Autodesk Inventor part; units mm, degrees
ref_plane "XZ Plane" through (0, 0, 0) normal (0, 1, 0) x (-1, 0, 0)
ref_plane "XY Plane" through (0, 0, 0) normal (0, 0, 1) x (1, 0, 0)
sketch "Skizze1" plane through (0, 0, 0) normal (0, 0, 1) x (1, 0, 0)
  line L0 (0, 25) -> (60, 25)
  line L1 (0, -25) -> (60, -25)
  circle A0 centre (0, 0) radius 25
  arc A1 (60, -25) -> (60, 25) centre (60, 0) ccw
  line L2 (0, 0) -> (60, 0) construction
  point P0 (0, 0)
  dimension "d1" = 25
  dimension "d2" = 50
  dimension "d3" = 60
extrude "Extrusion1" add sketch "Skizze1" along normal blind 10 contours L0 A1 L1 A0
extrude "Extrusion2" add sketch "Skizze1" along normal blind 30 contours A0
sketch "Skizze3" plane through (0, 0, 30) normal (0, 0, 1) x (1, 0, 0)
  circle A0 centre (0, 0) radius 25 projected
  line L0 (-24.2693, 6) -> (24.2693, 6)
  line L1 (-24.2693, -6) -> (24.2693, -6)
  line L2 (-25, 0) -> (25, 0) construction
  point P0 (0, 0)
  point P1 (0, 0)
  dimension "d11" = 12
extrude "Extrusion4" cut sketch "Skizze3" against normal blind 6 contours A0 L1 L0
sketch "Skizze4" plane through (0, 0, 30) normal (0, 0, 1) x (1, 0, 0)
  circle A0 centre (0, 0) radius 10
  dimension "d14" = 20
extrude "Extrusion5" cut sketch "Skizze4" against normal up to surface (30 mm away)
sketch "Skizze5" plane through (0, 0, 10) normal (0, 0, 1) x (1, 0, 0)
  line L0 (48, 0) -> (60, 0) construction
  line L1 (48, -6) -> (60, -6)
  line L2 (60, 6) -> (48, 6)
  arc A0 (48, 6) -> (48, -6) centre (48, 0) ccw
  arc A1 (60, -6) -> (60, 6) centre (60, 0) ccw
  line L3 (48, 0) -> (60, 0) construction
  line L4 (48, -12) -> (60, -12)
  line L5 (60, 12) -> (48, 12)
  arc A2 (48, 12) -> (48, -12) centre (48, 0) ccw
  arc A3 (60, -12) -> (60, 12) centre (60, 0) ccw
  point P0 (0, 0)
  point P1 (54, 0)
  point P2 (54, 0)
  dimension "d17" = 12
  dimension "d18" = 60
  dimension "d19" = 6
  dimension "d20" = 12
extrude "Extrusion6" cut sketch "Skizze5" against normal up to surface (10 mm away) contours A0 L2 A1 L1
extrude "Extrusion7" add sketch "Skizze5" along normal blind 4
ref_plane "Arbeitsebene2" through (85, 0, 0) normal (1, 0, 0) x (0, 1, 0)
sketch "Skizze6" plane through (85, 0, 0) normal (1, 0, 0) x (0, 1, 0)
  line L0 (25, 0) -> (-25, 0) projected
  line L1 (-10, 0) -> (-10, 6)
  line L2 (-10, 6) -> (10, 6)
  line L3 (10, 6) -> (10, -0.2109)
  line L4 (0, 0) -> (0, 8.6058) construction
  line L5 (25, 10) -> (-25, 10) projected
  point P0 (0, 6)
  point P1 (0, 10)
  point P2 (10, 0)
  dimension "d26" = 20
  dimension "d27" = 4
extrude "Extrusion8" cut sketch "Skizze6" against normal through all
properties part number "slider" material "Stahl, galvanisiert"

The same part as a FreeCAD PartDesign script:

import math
import FreeCAD as App
import Part
import Sketcher

V = App.Vector
Q = App.Units.Quantity

doc = App.newDocument("Part")
body = doc.addObject("PartDesign::Body", "Body")

# Sketch on XY plane
sketch1 = body.newObject("Sketcher::SketchObject", "Sketch")
sketch1.AttachmentSupport = (doc.getObject("XY_Plane"), [""])
sketch1.MapMode = "FlatFace"
sketch1.addGeometry(Part.LineSegment(V(60, 25, 0), V(0, 25, 0)), False)
sketch1.addGeometry(Part.ArcOfCircle(Part.Circle(V(0, 0, 0), V(0, 0, 1), 25), math.radians(-90), math.radians(90)), False)
sketch1.addGeometry(Part.LineSegment(V(0, -25, 0), V(60, -25, 0)), False)
sketch1.addGeometry(Part.ArcOfCircle(Part.Circle(V(60, 0, 0), V(0, 0, 1), 25), math.radians(-90), math.radians(90)), False)
sketch1.addConstraint(Sketcher.Constraint("Tangent", 0, 2, 1, 2))
sketch1.addConstraint(Sketcher.Constraint("Tangent", 1, 1, 2, 1))
sketch1.addConstraint(Sketcher.Constraint("Tangent", 2, 2, 3, 1))
sketch1.addConstraint(Sketcher.Constraint("Tangent", 3, 2, 0, 1))
sketch1.addConstraint(Sketcher.Constraint("Horizontal", 0))
sketch1.addConstraint(Sketcher.Constraint("Horizontal", 2))
sketch1.addConstraint(Sketcher.Constraint("Coincident", 1, 3, -1, 1))
sketch1.addConstraint(Sketcher.Constraint("Radius", 1, Q("25 mm")))
sketch1.addConstraint(Sketcher.Constraint("DistanceX", 0, 2, 0, 1, Q("60 mm")))
pad1 = body.newObject("PartDesign::Pad", "Pad")
pad1.Profile = sketch1
pad1.Length = 10

# Sketch on XY plane
sketch2 = body.newObject("Sketcher::SketchObject", "Sketch001")
sketch2.AttachmentSupport = (doc.getObject("XY_Plane"), [""])
sketch2.MapMode = "FlatFace"
sketch2.addGeometry(Part.Circle(V(0, 0, 0), V(0, 0, 1), 25), False)
sketch2.addConstraint(Sketcher.Constraint("Coincident", 0, 3, -1, 1))
sketch2.addConstraint(Sketcher.Constraint("Diameter", 0, Q("50 mm")))
pad2 = body.newObject("PartDesign::Pad", "Pad001")
pad2.Profile = sketch2
pad2.Length = 30

# Sketch on XY plane
sketch3 = body.newObject("Sketcher::SketchObject", "Sketch002")
sketch3.AttachmentSupport = (doc.getObject("XY_Plane"), [""])
sketch3.MapMode = "FlatFace"
sketch3.AttachmentOffset = App.Placement(V(0, 0, 30), App.Rotation())
sketch3.addGeometry(Part.ArcOfCircle(Part.Circle(V(0, 0, 0), V(0, 0, 1), 25), math.radians(-14), math.radians(14)), False)
sketch3.addGeometry(Part.LineSegment(V(24, 6, 0), V(-24, 6, 0)), False)
sketch3.addGeometry(Part.ArcOfCircle(Part.Circle(V(0, 0, 0), V(0, 0, 1), 25), math.radians(166), math.radians(194)), False)
sketch3.addGeometry(Part.LineSegment(V(-24, -6, 0), V(24, -6, 0)), False)
sketch3.addConstraint(Sketcher.Constraint("Coincident", 0, 2, 1, 1))
sketch3.addConstraint(Sketcher.Constraint("Coincident", 1, 2, 2, 1))
sketch3.addConstraint(Sketcher.Constraint("Coincident", 2, 2, 3, 1))
sketch3.addConstraint(Sketcher.Constraint("Coincident", 3, 2, 0, 1))
sketch3.addConstraint(Sketcher.Constraint("Horizontal", 1))
sketch3.addConstraint(Sketcher.Constraint("Horizontal", 3))
sketch3.addConstraint(Sketcher.Constraint("Coincident", 0, 3, -1, 1))
sketch3.addConstraint(Sketcher.Constraint("Coincident", 2, 3, -1, 1))
sketch3.addConstraint(Sketcher.Constraint("Equal", 0, 2))
sketch3.addConstraint(Sketcher.Constraint("Vertical", 1, 2, 2, 2))
sketch3.addConstraint(Sketcher.Constraint("Radius", 0, Q("25 mm")))
sketch3.addConstraint(Sketcher.Constraint("DistanceY", 2, 2, 1, 2, Q("12 mm")))
pocket1 = body.newObject("PartDesign::Pocket", "Pocket")
pocket1.Profile = sketch3
pocket1.Length = 6

# Sketch on XY plane
sketch4 = body.newObject("Sketcher::SketchObject", "Sketch003")
sketch4.AttachmentSupport = (doc.getObject("XY_Plane"), [""])
sketch4.MapMode = "FlatFace"
sketch4.AttachmentOffset = App.Placement(V(0, 0, 30), App.Rotation())
sketch4.addGeometry(Part.Circle(V(0, 0, 0), V(0, 0, 1), 10), False)
sketch4.addConstraint(Sketcher.Constraint("Coincident", 0, 3, -1, 1))
sketch4.addConstraint(Sketcher.Constraint("Diameter", 0, Q("20 mm")))
pocket2 = body.newObject("PartDesign::Pocket", "Pocket001")
pocket2.Profile = sketch4
pocket2.Length = 30

# Sketch on XY plane
sketch5 = body.newObject("Sketcher::SketchObject", "Sketch004")
sketch5.AttachmentSupport = (doc.getObject("XY_Plane"), [""])
sketch5.MapMode = "FlatFace"
sketch5.AttachmentOffset = App.Placement(V(0, 0, 10), App.Rotation())
sketch5.addGeometry(Part.ArcOfCircle(Part.Circle(V(48, 0, 0), V(0, 0, 1), 6), math.radians(90), math.radians(270)), False)
sketch5.addGeometry(Part.LineSegment(V(48, -6, 0), V(60, -6, 0)), False)
sketch5.addGeometry(Part.ArcOfCircle(Part.Circle(V(60, 0, 0), V(0, 0, 1), 6), math.radians(-90), math.radians(90)), False)
sketch5.addGeometry(Part.LineSegment(V(60, 6, 0), V(48, 6, 0)), False)
sketch5.addConstraint(Sketcher.Constraint("Tangent", 0, 2, 1, 1))
sketch5.addConstraint(Sketcher.Constraint("Tangent", 1, 2, 2, 1))
sketch5.addConstraint(Sketcher.Constraint("Tangent", 2, 2, 3, 1))
sketch5.addConstraint(Sketcher.Constraint("Tangent", 3, 2, 0, 1))
sketch5.addConstraint(Sketcher.Constraint("Horizontal", 1))
sketch5.addConstraint(Sketcher.Constraint("Horizontal", 3))
sketch5.addConstraint(Sketcher.Constraint("PointOnObject", 0, 3, -1))
sketch5.addConstraint(Sketcher.Constraint("Radius", 0, Q("6 mm")))
sketch5.addConstraint(Sketcher.Constraint("DistanceX", 1, 1, 1, 2, Q("12 mm")))
sketch5.addConstraint(Sketcher.Constraint("DistanceX", -1, 1, 2, 3, Q("60 mm")))
pocket3 = body.newObject("PartDesign::Pocket", "Pocket002")
pocket3.Profile = sketch5
pocket3.Length = 10

# Sketch on XY plane
sketch6 = body.newObject("Sketcher::SketchObject", "Sketch005")
sketch6.AttachmentSupport = (doc.getObject("XY_Plane"), [""])
sketch6.MapMode = "FlatFace"
sketch6.AttachmentOffset = App.Placement(V(0, 0, 10), App.Rotation())
sketch6.addGeometry(Part.ArcOfCircle(Part.Circle(V(48, 0, 0), V(0, 0, 1), 12), math.radians(90), math.radians(270)), False)
sketch6.addGeometry(Part.LineSegment(V(48, -12, 0), V(60, -12, 0)), False)
sketch6.addGeometry(Part.ArcOfCircle(Part.Circle(V(60, 0, 0), V(0, 0, 1), 12), math.radians(-90), math.radians(90)), False)
sketch6.addGeometry(Part.LineSegment(V(60, 12, 0), V(48, 12, 0)), False)
sketch6.addGeometry(Part.LineSegment(V(60, -6, 0), V(48, -6, 0)), False)
sketch6.addGeometry(Part.ArcOfCircle(Part.Circle(V(48, 0, 0), V(0, 0, 1), 6), math.radians(90), math.radians(270)), False)
sketch6.addGeometry(Part.LineSegment(V(48, 6, 0), V(60, 6, 0)), False)
sketch6.addGeometry(Part.ArcOfCircle(Part.Circle(V(60, 0, 0), V(0, 0, 1), 6), math.radians(-90), math.radians(90)), False)
sketch6.addConstraint(Sketcher.Constraint("Tangent", 0, 2, 1, 1))
sketch6.addConstraint(Sketcher.Constraint("Tangent", 1, 2, 2, 1))
sketch6.addConstraint(Sketcher.Constraint("Tangent", 2, 2, 3, 1))
sketch6.addConstraint(Sketcher.Constraint("Tangent", 3, 2, 0, 1))
sketch6.addConstraint(Sketcher.Constraint("Tangent", 4, 2, 5, 2))
sketch6.addConstraint(Sketcher.Constraint("Tangent", 5, 1, 6, 1))
sketch6.addConstraint(Sketcher.Constraint("Tangent", 6, 2, 7, 2))
sketch6.addConstraint(Sketcher.Constraint("Tangent", 7, 1, 4, 1))
sketch6.addConstraint(Sketcher.Constraint("Horizontal", 1))
sketch6.addConstraint(Sketcher.Constraint("Horizontal", 3))
sketch6.addConstraint(Sketcher.Constraint("Horizontal", 4))
sketch6.addConstraint(Sketcher.Constraint("Horizontal", 6))
sketch6.addConstraint(Sketcher.Constraint("Coincident", 5, 3, 0, 3))
sketch6.addConstraint(Sketcher.Constraint("PointOnObject", 0, 3, -1))
sketch6.addConstraint(Sketcher.Constraint("Vertical", 7, 3, 1, 2))
sketch6.addConstraint(Sketcher.Constraint("Radius", 0, Q("12 mm")))
sketch6.addConstraint(Sketcher.Constraint("Radius", 5, Q("6 mm")))
sketch6.addConstraint(Sketcher.Constraint("DistanceX", 1, 1, 1, 2, Q("12 mm")))
sketch6.addConstraint(Sketcher.Constraint("DistanceX", -1, 1, 2, 3, Q("60 mm")))
pad3 = body.newObject("PartDesign::Pad", "Pad002")
pad3.Profile = sketch6
pad3.Length = 4

# Sketch on YZ plane
sketch7 = body.newObject("Sketcher::SketchObject", "Sketch006")
sketch7.AttachmentSupport = (doc.getObject("YZ_Plane"), [""])
sketch7.MapMode = "FlatFace"
sketch7.AttachmentOffset = App.Placement(V(0, 0, 85), App.Rotation())
sketch7.addGeometry(Part.LineSegment(V(-10, 0, 0), V(10, 0, 0)), False)
sketch7.addGeometry(Part.LineSegment(V(10, 0, 0), V(10, 6, 0)), False)
sketch7.addGeometry(Part.LineSegment(V(10, 6, 0), V(-10, 6, 0)), False)
sketch7.addGeometry(Part.LineSegment(V(-10, 6, 0), V(-10, 0, 0)), False)
sketch7.addConstraint(Sketcher.Constraint("Coincident", 0, 2, 1, 1))
sketch7.addConstraint(Sketcher.Constraint("Coincident", 1, 2, 2, 1))
sketch7.addConstraint(Sketcher.Constraint("Coincident", 2, 2, 3, 1))
sketch7.addConstraint(Sketcher.Constraint("Coincident", 3, 2, 0, 1))
sketch7.addConstraint(Sketcher.Constraint("Horizontal", 0))
sketch7.addConstraint(Sketcher.Constraint("Vertical", 1))
sketch7.addConstraint(Sketcher.Constraint("Horizontal", 2))
sketch7.addConstraint(Sketcher.Constraint("Vertical", 3))
sketch7.addConstraint(Sketcher.Constraint("Symmetric", 0, 2, 3, 2, -1, 1))
sketch7.addConstraint(Sketcher.Constraint("DistanceX", 0, 1, 0, 2, Q("20 mm")))
sketch7.addConstraint(Sketcher.Constraint("DistanceY", 1, 1, 1, 2, Q("6 mm")))
pocket4 = body.newObject("PartDesign::Pocket", "Pocket003")
pocket4.Profile = sketch7
pocket4.Type = "ThroughAll"

doc.recompute()
